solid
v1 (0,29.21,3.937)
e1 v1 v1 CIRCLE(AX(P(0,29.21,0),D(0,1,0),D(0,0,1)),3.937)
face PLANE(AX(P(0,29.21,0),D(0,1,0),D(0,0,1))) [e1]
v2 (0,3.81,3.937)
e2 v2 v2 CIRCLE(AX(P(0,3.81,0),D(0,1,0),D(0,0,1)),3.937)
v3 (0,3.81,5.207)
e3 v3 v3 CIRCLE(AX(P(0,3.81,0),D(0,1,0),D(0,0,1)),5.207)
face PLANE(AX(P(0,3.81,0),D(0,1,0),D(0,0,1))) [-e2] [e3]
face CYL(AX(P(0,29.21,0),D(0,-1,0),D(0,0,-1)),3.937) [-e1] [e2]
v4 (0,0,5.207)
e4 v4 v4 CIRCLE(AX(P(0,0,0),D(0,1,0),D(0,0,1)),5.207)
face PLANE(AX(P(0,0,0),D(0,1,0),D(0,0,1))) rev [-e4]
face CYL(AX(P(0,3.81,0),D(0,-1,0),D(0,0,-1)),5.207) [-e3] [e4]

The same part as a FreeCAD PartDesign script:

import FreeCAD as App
import Part
import Sketcher
from FreeCAD import Vector
Q = App.Units.Quantity

doc = App.newDocument("Part")
body = doc.addObject("PartDesign::Body", "Body")

# Sketch on XZ plane
sketch1 = doc.addObject("Sketcher::SketchObject", "Sketch")
body.addObject(sketch1)
sketch1.AttachmentSupport = (doc.XZ_Plane, [""])
sketch1.MapMode = "FlatFace"
sketch1.addGeometry(Part.Circle(Vector(0, 0, 0), Vector(0, 0, 1), 5), False)
sketch1.addConstraint([
    Sketcher.Constraint("Coincident", 0, 3, -1, 1),
    Sketcher.Constraint("Diameter", 0, Q("0.41 in")),
])
pad1 = doc.addObject("PartDesign::Pad", "Pad")
body.addObject(pad1)
pad1.Profile = sketch1
pad1.Length = Q("0.15 in")
pad1.Reversed = True

# Sketch on XZ plane
sketch2 = doc.addObject("Sketcher::SketchObject", "Sketch001")
body.addObject(sketch2)
sketch2.AttachmentSupport = (doc.XZ_Plane, [""])
sketch2.MapMode = "FlatFace"
sketch2.AttachmentOffset = App.Placement(Vector(0, 0, -0.15 * 25.4), App.Rotation())
sketch2.addGeometry(Part.Circle(Vector(0, 0, 0), Vector(0, 0, 1), 3.9), False)
sketch2.addConstraint([
    Sketcher.Constraint("Coincident", 0, 3, -1, 1),
    Sketcher.Constraint("Diameter", 0, Q("0.31 in")),
])
pad2 = doc.addObject("PartDesign::Pad", "Pad001")
body.addObject(pad2)
pad2.Profile = sketch2
pad2.Length = Q("1 in")
pad2.Reversed = True

doc.recompute()
